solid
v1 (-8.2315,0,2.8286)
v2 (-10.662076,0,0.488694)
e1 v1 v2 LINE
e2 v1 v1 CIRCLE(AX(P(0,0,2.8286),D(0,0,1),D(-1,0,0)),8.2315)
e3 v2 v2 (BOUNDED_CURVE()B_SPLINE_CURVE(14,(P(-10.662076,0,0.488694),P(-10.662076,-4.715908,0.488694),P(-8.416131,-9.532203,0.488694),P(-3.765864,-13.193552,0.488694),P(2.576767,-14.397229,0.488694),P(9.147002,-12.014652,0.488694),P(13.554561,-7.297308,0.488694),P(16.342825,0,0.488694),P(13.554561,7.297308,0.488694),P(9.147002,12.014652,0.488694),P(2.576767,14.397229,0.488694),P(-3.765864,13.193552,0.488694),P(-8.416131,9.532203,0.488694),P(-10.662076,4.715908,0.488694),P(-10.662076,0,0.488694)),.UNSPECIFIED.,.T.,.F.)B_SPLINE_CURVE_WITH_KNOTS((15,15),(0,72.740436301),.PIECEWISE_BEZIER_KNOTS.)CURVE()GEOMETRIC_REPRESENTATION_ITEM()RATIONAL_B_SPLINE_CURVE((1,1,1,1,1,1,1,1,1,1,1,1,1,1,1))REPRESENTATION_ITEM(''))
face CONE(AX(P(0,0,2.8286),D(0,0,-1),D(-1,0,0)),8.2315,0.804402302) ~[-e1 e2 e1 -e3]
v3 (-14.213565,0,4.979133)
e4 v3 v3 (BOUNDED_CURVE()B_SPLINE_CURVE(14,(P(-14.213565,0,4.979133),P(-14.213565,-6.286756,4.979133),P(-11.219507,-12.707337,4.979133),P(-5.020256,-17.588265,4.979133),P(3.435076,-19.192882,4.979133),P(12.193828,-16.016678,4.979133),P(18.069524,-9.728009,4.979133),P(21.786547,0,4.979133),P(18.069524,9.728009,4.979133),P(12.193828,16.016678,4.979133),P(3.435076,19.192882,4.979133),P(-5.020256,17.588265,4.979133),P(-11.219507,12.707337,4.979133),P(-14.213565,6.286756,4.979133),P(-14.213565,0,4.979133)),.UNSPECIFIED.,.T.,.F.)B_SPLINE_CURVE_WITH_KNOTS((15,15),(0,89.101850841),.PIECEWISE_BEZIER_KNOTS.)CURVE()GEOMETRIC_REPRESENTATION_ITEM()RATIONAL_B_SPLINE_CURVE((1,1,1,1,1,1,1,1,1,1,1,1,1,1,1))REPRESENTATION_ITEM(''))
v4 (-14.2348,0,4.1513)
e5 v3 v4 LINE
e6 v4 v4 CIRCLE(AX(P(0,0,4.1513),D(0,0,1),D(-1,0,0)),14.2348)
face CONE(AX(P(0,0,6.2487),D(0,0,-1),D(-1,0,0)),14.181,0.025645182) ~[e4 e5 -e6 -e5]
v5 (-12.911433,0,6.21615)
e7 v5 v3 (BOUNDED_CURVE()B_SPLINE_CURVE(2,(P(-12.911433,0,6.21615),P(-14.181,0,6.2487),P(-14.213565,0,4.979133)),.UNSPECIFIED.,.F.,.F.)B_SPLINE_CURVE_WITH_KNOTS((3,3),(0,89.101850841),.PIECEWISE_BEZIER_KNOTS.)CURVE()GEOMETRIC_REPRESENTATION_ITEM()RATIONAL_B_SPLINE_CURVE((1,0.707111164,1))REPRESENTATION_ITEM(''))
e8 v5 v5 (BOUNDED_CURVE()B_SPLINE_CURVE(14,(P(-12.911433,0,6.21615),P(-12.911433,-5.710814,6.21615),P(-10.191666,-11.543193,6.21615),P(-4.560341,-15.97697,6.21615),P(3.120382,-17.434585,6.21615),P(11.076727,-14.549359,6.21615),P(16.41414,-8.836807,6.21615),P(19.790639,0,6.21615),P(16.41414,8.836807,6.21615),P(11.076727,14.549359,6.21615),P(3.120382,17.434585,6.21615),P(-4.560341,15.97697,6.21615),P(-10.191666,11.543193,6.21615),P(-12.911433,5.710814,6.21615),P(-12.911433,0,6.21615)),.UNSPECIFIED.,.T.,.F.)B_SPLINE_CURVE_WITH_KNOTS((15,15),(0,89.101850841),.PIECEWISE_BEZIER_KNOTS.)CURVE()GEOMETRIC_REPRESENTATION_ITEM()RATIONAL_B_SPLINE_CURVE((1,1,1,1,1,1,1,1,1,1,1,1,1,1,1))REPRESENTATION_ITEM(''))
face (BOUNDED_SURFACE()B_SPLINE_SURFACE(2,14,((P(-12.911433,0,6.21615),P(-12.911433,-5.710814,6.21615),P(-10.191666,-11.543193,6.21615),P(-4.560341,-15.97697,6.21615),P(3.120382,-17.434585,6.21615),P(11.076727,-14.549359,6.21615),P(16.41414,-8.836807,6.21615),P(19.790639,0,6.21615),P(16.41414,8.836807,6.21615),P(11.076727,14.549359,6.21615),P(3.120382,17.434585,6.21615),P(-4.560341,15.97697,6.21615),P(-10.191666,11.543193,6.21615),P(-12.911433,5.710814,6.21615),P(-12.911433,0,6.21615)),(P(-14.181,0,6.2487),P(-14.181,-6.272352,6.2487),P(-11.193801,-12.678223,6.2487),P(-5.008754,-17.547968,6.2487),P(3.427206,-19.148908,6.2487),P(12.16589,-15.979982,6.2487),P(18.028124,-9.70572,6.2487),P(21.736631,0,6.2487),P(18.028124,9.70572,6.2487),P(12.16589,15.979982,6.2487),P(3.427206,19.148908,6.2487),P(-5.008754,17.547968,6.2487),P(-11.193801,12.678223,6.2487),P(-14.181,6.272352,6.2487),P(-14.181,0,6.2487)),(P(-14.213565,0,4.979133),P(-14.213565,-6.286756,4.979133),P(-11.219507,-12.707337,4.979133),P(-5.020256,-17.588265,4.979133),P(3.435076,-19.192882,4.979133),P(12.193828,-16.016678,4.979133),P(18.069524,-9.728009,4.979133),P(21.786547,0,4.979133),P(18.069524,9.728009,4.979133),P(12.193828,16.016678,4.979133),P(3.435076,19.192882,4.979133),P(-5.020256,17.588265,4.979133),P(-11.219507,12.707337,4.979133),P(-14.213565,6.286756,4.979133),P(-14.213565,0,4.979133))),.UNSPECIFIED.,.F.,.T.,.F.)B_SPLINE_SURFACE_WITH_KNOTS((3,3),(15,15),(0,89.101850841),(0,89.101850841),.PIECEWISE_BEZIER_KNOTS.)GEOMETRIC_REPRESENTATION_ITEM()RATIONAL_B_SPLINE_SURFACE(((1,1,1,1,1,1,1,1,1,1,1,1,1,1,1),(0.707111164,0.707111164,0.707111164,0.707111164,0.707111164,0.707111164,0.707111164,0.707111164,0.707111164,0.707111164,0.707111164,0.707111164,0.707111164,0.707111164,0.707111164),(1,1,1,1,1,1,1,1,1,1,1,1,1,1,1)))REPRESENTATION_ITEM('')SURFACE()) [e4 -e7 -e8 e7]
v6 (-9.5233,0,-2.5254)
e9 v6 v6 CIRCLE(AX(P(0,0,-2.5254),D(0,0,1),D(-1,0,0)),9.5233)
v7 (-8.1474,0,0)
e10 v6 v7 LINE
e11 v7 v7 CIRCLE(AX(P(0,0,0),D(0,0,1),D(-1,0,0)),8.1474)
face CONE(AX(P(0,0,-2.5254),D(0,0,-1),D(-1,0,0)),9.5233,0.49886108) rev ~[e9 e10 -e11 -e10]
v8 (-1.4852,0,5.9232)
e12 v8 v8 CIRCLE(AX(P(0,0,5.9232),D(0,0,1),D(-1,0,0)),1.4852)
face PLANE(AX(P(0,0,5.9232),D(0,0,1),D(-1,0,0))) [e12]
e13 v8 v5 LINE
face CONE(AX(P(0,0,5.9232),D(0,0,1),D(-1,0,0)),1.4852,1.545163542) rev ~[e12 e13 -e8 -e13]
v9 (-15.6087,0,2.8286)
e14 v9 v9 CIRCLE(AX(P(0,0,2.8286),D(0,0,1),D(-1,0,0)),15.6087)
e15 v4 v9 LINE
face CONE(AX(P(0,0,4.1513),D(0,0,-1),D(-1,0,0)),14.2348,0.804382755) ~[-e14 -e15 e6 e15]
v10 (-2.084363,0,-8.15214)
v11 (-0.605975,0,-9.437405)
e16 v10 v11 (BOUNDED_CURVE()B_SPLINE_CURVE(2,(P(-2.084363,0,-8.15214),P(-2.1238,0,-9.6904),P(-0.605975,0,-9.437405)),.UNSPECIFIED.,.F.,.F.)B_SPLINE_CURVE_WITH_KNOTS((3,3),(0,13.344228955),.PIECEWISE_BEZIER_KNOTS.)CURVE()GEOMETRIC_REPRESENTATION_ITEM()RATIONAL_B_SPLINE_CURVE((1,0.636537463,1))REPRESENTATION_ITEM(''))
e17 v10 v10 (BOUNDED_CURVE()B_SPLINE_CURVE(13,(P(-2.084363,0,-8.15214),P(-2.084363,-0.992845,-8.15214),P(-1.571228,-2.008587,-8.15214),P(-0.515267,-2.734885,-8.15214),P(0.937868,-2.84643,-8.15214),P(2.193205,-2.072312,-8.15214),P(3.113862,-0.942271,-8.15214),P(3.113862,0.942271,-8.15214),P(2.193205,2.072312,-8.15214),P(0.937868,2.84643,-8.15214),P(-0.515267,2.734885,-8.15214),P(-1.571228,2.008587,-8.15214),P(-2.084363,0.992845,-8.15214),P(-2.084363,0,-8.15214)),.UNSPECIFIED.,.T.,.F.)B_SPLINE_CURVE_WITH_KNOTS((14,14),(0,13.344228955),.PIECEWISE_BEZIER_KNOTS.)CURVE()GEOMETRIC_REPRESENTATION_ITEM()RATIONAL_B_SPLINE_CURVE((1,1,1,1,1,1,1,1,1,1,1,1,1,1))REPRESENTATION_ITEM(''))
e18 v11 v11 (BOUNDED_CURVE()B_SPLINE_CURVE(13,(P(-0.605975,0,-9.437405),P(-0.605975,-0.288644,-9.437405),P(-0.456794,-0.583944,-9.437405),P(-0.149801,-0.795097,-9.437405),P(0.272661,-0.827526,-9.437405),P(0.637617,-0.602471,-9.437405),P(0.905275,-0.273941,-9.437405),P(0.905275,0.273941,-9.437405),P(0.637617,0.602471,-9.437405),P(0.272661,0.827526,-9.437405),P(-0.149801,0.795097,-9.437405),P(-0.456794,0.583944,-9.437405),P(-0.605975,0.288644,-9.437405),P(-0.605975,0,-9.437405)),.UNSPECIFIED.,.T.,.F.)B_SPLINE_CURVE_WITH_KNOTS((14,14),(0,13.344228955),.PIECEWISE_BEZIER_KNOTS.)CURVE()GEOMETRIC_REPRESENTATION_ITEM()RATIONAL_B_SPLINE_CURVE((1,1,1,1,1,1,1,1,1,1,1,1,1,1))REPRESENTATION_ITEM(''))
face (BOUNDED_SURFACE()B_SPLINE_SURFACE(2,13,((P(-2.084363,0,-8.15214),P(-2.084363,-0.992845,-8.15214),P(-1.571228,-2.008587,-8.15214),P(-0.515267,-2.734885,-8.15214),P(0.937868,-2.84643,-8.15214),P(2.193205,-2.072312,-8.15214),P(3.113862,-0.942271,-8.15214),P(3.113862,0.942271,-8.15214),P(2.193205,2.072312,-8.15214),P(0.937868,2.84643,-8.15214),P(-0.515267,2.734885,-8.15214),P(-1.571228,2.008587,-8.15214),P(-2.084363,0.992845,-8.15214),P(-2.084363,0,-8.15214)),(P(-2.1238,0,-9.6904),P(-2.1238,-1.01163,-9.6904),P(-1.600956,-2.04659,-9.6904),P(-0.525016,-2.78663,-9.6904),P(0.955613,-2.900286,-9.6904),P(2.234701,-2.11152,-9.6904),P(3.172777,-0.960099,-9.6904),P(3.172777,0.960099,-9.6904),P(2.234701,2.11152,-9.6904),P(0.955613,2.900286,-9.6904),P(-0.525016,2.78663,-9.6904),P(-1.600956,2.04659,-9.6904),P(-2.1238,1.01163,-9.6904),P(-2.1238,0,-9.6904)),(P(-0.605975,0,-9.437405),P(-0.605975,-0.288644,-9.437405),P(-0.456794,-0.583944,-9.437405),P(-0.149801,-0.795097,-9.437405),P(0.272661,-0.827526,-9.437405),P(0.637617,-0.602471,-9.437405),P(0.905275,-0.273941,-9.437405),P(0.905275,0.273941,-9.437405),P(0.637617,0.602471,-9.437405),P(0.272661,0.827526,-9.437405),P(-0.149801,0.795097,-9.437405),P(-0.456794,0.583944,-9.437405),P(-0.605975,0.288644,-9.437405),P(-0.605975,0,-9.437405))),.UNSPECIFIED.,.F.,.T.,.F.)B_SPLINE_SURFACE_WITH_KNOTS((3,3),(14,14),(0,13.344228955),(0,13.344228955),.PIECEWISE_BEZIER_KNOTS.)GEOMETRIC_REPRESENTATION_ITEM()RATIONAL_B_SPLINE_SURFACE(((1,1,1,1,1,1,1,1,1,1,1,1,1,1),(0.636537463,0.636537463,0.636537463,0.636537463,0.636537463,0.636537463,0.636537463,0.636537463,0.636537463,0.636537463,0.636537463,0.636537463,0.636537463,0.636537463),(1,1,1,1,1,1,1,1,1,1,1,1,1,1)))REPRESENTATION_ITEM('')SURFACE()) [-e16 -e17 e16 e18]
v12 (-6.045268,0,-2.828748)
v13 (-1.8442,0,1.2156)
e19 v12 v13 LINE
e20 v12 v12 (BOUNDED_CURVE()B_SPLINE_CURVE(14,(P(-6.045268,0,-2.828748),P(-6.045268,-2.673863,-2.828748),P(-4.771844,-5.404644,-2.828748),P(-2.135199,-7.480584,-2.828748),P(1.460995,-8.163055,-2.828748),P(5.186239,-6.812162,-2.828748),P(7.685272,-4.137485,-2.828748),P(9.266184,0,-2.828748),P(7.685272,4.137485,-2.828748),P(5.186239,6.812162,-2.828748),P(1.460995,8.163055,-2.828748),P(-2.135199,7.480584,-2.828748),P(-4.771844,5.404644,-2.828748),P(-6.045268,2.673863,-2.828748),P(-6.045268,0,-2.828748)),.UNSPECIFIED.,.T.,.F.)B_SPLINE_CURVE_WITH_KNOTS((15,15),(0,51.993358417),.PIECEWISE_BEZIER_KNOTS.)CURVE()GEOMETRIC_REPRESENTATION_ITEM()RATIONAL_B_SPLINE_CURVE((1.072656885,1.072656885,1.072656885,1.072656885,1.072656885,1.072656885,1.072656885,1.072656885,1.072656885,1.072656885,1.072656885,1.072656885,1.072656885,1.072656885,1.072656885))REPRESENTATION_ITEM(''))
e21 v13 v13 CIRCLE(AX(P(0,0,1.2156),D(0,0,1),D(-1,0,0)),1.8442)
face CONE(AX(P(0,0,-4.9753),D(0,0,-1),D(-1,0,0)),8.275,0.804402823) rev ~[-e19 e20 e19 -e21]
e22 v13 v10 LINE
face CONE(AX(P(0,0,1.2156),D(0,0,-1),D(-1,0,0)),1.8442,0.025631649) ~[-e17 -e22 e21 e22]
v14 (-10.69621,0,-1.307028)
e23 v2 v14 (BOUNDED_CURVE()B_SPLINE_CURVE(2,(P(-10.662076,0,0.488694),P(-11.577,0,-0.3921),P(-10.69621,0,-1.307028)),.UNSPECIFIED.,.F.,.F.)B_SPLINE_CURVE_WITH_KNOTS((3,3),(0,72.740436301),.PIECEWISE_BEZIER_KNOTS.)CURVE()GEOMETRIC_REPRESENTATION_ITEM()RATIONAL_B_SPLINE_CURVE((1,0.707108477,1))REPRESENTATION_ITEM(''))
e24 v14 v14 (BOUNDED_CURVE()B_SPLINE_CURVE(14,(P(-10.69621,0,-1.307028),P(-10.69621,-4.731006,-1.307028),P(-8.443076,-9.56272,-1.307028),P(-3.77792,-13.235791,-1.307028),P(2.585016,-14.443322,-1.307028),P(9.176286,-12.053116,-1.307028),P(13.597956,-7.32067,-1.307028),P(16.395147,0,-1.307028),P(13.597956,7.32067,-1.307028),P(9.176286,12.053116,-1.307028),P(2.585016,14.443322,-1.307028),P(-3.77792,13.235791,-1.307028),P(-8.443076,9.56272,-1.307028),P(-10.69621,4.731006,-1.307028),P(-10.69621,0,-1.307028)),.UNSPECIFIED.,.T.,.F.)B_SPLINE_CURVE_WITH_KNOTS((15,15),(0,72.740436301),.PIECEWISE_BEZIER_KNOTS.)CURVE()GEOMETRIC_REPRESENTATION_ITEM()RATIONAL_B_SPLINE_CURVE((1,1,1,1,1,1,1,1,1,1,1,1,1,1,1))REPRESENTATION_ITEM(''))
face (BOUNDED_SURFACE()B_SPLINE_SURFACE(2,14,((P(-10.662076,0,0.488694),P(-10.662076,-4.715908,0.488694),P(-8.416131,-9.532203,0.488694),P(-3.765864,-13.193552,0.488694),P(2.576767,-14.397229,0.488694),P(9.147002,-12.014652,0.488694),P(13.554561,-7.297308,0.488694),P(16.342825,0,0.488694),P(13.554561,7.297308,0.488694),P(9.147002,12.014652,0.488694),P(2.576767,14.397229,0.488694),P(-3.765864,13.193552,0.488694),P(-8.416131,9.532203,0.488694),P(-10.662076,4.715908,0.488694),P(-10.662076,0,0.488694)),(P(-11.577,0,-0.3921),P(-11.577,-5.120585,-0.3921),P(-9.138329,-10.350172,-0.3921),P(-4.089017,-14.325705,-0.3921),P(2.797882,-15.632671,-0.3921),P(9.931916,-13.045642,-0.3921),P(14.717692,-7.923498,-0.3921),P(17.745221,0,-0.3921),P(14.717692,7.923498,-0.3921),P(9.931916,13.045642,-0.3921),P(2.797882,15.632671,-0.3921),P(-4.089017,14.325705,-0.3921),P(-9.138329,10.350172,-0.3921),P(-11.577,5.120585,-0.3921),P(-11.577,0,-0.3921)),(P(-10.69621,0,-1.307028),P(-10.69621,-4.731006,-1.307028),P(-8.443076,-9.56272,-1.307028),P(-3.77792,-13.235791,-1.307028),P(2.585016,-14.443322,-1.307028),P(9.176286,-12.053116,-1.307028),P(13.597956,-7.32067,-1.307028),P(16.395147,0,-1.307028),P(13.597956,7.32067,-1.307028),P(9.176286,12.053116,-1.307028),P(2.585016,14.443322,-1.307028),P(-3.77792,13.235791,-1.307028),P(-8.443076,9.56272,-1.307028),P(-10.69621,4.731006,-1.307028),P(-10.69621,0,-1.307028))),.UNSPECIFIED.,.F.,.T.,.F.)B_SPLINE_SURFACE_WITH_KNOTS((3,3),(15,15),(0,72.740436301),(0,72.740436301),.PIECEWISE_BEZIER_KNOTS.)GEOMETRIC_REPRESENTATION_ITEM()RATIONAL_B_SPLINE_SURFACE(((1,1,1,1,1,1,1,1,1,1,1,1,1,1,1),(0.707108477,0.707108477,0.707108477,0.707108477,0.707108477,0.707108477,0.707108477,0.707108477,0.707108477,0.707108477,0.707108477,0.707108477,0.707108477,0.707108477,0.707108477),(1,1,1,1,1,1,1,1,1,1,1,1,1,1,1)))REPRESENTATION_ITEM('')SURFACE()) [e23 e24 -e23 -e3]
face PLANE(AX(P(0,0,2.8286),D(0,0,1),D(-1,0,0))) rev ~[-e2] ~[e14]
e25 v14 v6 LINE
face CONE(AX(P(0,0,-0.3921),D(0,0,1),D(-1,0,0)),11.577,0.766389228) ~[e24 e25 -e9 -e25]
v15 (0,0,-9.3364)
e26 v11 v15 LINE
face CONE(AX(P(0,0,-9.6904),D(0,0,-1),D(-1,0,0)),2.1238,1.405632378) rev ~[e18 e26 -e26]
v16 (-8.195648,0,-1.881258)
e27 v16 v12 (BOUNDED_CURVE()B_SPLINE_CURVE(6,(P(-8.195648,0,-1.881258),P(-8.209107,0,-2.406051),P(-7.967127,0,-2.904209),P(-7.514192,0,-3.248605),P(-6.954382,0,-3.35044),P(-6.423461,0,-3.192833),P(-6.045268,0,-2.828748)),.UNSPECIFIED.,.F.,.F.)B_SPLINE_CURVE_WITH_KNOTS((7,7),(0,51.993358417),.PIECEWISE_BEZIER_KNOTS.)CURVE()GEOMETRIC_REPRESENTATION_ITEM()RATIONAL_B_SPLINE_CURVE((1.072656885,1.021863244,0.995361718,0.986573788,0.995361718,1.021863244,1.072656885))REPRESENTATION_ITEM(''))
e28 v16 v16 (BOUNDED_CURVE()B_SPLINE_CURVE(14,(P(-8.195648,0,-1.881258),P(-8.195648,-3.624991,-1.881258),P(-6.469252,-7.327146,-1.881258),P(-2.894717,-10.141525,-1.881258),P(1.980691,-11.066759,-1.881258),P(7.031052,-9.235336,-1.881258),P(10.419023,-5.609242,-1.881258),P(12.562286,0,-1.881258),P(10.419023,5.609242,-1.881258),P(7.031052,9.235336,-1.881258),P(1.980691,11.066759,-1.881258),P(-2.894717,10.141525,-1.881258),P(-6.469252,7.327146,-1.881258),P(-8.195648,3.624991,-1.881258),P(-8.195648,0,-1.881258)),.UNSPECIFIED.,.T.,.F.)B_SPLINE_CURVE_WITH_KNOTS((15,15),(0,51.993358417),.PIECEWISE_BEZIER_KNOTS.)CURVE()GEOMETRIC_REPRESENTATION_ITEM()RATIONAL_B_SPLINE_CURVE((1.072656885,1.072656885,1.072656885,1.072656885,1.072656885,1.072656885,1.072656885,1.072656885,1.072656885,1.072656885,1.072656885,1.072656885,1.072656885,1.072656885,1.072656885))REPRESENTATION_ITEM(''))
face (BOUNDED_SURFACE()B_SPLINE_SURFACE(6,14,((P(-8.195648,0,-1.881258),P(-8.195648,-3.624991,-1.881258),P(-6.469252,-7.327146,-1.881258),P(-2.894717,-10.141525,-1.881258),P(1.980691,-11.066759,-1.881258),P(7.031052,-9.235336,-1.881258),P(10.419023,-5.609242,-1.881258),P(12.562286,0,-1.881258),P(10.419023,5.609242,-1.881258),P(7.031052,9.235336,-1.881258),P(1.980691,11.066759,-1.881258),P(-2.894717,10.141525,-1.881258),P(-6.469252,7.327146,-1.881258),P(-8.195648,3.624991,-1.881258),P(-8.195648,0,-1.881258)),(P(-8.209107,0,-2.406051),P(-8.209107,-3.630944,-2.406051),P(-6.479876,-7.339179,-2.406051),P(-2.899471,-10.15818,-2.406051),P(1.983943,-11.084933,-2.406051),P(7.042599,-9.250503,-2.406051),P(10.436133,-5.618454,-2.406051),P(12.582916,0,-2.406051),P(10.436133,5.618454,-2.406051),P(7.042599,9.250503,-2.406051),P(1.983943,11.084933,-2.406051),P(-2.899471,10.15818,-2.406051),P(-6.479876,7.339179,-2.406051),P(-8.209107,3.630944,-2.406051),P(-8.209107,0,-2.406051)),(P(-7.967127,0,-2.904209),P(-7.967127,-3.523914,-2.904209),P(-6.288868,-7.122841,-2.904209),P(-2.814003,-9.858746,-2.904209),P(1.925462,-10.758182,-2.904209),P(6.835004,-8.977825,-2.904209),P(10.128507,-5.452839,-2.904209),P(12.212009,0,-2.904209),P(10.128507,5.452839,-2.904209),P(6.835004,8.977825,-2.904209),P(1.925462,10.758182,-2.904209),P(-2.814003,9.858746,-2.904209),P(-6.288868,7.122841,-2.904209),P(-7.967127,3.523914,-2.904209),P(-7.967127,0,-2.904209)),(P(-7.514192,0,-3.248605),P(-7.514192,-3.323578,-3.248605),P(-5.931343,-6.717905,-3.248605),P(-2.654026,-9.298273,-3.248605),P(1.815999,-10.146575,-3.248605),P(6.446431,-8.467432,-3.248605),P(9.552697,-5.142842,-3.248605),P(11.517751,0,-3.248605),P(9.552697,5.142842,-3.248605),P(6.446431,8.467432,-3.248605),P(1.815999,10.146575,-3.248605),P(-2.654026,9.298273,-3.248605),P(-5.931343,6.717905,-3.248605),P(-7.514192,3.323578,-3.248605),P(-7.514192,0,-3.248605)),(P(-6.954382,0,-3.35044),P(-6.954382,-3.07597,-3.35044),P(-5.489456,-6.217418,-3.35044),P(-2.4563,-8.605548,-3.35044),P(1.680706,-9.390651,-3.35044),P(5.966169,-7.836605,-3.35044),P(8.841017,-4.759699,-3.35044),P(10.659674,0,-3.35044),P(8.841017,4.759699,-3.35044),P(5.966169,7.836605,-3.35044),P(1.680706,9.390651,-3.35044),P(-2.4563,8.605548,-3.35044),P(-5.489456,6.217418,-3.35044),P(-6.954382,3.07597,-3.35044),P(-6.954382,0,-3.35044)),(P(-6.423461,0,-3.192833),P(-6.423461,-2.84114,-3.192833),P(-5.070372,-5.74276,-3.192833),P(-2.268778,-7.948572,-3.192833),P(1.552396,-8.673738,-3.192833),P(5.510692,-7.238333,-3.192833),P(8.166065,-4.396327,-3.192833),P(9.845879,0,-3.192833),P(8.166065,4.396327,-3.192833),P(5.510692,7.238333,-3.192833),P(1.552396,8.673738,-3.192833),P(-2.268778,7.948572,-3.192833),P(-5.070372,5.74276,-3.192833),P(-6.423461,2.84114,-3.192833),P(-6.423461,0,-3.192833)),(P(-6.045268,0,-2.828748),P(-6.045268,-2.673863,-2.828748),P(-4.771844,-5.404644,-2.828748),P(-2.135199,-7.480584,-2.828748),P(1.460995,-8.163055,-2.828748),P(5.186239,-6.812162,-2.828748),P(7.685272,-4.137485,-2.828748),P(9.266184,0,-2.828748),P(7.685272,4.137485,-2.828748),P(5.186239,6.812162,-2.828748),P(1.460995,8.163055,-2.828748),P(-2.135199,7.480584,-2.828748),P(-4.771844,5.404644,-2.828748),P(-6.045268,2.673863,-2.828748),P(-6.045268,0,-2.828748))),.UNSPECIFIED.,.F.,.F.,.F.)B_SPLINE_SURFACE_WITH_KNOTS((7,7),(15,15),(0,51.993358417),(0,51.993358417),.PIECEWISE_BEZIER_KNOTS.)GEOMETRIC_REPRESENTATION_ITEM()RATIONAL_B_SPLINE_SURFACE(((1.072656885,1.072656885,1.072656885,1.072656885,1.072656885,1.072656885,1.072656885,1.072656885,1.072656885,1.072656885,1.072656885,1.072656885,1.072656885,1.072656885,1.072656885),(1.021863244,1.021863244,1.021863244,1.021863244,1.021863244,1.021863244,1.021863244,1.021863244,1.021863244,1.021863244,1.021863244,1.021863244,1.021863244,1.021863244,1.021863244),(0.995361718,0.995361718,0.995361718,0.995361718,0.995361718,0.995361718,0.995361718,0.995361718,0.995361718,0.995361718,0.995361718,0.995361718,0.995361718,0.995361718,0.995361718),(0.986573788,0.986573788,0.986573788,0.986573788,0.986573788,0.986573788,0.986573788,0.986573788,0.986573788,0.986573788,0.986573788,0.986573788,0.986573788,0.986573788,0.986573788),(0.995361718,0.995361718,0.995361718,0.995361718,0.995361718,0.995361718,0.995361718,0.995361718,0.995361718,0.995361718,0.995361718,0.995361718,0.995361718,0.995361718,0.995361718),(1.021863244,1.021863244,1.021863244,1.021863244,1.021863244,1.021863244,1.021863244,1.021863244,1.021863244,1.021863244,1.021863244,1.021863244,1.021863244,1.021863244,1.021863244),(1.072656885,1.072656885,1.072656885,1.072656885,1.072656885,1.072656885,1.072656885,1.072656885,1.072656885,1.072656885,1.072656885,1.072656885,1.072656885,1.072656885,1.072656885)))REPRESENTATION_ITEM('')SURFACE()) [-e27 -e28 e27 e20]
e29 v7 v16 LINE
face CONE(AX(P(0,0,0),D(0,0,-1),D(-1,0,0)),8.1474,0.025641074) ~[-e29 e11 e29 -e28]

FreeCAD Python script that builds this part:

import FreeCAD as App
import Part
import Sketcher

V = App.Vector
Q = App.Units.Quantity


def edges_at(feature, points):
    """Names of the edges that pass closest to the given points."""
    edges = feature.Shape.Edges
    near = lambda p: min(range(len(edges)), key=lambda i: edges[i].distToShape(Part.Vertex(*p))[0])
    return sorted({f"Edge{near(p) + 1}" for p in points})


def add_polygon(sketch, points):
    """Adds a closed chain of lines whose ends are joined by coincident constraints."""
    first, n = sketch.GeometryCount, len(points)
    for a, b in zip(points, points[1:] + points[:1]):
        sketch.addGeometry(Part.LineSegment(App.Vector(*a, 0), App.Vector(*b, 0)), False)
    for i in range(n):
        sketch.addConstraint(Sketcher.Constraint("Coincident", first + i, 2, first + (i + 1) % n, 1))

doc = App.newDocument("Part")
body = doc.addObject("PartDesign::Body", "Body")

sketch1 = doc.addObject("Sketcher::SketchObject", "Sketch")
body.addObject(sketch1)
sketch1.AttachmentSupport = (doc.XZ_Plane, [""])
sketch1.MapMode = "FlatFace"
add_polygon(sketch1, [(-14.181, 6.2487), (-1.4852, 5.9232), (0, 5.9232), (0, -9.3364), (-2.1238, -9.6904), (-1.8442, 1.2156), (-8.275, -4.9753), (-8.1474, 0), (-9.5233, -2.5254), (-11.577, -0.3921), (-8.2315, 2.8286), (-15.6087, 2.8286), (-14.2348, 4.1513)])
sketch1.addConstraint([
    Sketcher.Constraint("Horizontal", 1),
    Sketcher.Constraint("Vertical", 2),
    Sketcher.Constraint("Horizontal", 10),
    Sketcher.Constraint("PointOnObject", 1, 2, -2),
    Sketcher.Constraint("PointOnObject", 6, 2, -1),
    Sketcher.Constraint("Distance", 0, Q("0.5 in")),
    Sketcher.Constraint("DistanceX", 8, 2, 5, 2, Q("0.13 in")),
    Sketcher.Constraint("DistanceY", -1, 1, 12, 2, Q("0.246 in")),
    Sketcher.Constraint("DistanceX", 3, 2, 4, 2, Q("0.011 in")),
    Sketcher.Constraint("DistanceY", 7, 2, 8, 2, Q("0.084 in")),
    Sketcher.Constraint("Distance", 4, Q("0.4295 in")),
    Sketcher.Constraint("Distance", 12, Q("0.0826 in")),
    Sketcher.Constraint("DistanceX", 1, 1, 1, 2, Q("1.4852 mm")),
    Sketcher.Constraint("DistanceX", 10, 2, 10, 1, Q("7.3772 mm")),
    Sketcher.Constraint("DistanceY", 2, 2, 2, 1, Q("15.2596 mm")),
    Sketcher.Constraint("DistanceY", -1, 1, 0, 2, Q("0.2332 in")),
    Sketcher.Constraint("DistanceY", 3, 2, -1, 1, Q("0.3815 in")),
    Sketcher.Constraint("DistanceX", 4, 2, -1, 1, Q("0.0726 in")),
    Sketcher.Constraint("DistanceY", 2, 2, 5, 2, Q("0.1717 in")),
    Sketcher.Constraint("DistanceX", 6, 2, 0, 2, Q("0.2623 in")),
    Sketcher.Constraint("DistanceY", 8, 2, 4, 2, Q("0.0633 in")),
    Sketcher.Constraint("DistanceX", 9, 2, 6, 2, Q("0.0033 in")),
    Sketcher.Constraint("DistanceY", 8, 2, 9, 2, Q("0.1268 in")),
    Sketcher.Constraint("DistanceX", 10, 2, 11, 2, Q("0.0541 in")),
    Sketcher.Constraint("DistanceX", 11, 2, 7, 2, Q("0.1855 in")),
    Sketcher.Constraint("Distance", 5, Q("8.9265 mm")),
])
revolution = doc.addObject("PartDesign::Revolution", "Revolution")
body.addObject(revolution)
revolution.Profile = sketch1
revolution.ReferenceAxis = (sketch1, ["V_Axis"])
revolution.Angle = 360
doc.recompute()

fillet = doc.addObject("PartDesign::Fillet", "Fillet")
body.addObject(fillet)
fillet.Base = (revolution, edges_at(revolution, [
    (11.577, 0, -0.392),
    (14.181, 0, 6.249),
    (2.124, 0, -9.69),
    (8.275, 0, -4.975),
]))
fillet.Radius = Q("0.05 in")

doc.recompute()
